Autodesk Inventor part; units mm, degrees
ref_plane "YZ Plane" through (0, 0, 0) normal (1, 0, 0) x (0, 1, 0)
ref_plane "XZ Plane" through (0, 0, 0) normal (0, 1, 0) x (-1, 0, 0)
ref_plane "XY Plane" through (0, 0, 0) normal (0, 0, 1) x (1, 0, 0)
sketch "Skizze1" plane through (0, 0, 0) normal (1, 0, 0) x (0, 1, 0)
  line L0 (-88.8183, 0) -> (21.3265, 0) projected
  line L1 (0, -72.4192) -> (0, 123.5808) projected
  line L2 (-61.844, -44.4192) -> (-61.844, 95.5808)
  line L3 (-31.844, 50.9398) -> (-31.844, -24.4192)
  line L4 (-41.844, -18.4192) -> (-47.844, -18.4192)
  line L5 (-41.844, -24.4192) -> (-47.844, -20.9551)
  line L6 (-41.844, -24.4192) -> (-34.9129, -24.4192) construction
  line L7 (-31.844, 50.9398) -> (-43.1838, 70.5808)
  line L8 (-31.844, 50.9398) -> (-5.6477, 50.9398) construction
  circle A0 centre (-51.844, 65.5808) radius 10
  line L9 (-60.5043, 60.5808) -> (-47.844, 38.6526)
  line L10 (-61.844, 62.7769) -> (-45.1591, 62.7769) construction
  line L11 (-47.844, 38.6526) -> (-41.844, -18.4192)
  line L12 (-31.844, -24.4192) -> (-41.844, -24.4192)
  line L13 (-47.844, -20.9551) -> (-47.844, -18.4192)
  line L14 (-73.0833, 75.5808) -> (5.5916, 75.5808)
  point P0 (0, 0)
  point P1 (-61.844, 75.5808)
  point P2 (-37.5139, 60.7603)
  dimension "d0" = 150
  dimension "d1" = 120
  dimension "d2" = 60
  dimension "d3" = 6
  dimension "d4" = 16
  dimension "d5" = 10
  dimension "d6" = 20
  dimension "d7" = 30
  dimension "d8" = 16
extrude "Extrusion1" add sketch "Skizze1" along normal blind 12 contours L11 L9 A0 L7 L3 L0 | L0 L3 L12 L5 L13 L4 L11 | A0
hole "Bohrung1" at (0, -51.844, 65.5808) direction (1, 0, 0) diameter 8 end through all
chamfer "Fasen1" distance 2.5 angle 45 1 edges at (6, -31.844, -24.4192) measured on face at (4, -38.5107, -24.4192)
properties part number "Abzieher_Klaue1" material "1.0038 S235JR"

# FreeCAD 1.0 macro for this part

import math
import FreeCAD as App
import Part
import Sketcher

V = App.Vector
Q = App.Units.Quantity


def edges_at(feature, points):
    """Names of the edges that pass closest to the given points."""
    edges = feature.Shape.Edges
    near = lambda p: min(range(len(edges)), key=lambda i: edges[i].distToShape(Part.Vertex(*p))[0])
    return sorted({f"Edge{near(p) + 1}" for p in points})

doc = App.newDocument("Part")
body = doc.addObject("PartDesign::Body", "Body")

# Sketch on YZ plane
sketch1 = doc.addObject("Sketcher::SketchObject", "Sketch")
body.addObject(sketch1)
sketch1.AttachmentSupport = (doc.YZ_Plane, [""])
sketch1.MapMode = "FlatFace"
sketch1.addGeometry([
    Part.LineSegment(V(-47.844, 38.6526, 0), V(-41.844, -18.4192, 0)),  # 0
    Part.LineSegment(V(-41.844, -18.4192, 0), V(-47.844, -18.4192, 0)),  # 1
    Part.LineSegment(V(-47.844, -18.4192, 0), V(-47.844, -20.9551, 0)),  # 2
    Part.LineSegment(V(-47.844, -20.9551, 0), V(-41.844, -24.4192, 0)),  # 3
    Part.LineSegment(V(-41.844, -24.4192, 0), V(-31.844, -24.4192, 0)),  # 4
    Part.LineSegment(V(-31.844, -24.4192, 0), V(-31.844, 50.9398, 0)),  # 5
    Part.LineSegment(V(-31.844, 50.9398, 0), V(-43.1838, 70.5808, 0)),  # 6
    Part.ArcOfCircle(Part.Circle(V(-51.844, 65.5808, 0), V(0, 0, 1), 10), math.radians(30.000155), math.radians(209.999868)),  # 7
    Part.LineSegment(V(-60.5043, 60.5808, 0), V(-47.844, 38.6526, 0)),  # 8
], False)
sketch1.addConstraint([
    Sketcher.Constraint("Coincident", 0, 2, 1, 1),
    Sketcher.Constraint("Coincident", 1, 2, 2, 1),
    Sketcher.Constraint("Coincident", 2, 2, 3, 1),
    Sketcher.Constraint("Coincident", 3, 2, 4, 1),
    Sketcher.Constraint("Coincident", 4, 2, 5, 1),
    Sketcher.Constraint("Coincident", 5, 2, 6, 1),
    Sketcher.Constraint("Tangent", 6, 2, 7, 1),
    Sketcher.Constraint("Tangent", 7, 2, 8, 1),
    Sketcher.Constraint("Coincident", 8, 2, 0, 1),
    Sketcher.Constraint("Horizontal", 1),
    Sketcher.Constraint("Vertical", 2),
    Sketcher.Constraint("Horizontal", 4),
    Sketcher.Constraint("Vertical", 5),
    Sketcher.Constraint("Parallel", 6, 8),
    Sketcher.Constraint("Vertical", 0, 2, 3, 2),
    Sketcher.Constraint("Vertical", 2, 2, 8, 2),
    Sketcher.Constraint("Radius", 7, Q("10 mm")),
    Sketcher.Constraint("DistanceX", 1, 2, 1, 1, Q("6 mm")),
    Sketcher.Constraint("DistanceX", 4, 1, 4, 2, Q("10 mm")),
    Sketcher.Constraint("Angle", 3, Q("-30 deg")),
    Sketcher.Constraint("Angle", 6, Q("120.0001 deg")),
    Sketcher.Constraint("DistanceX", 7, 3, 0, 2, Q("10 mm")),
    Sketcher.Constraint("DistanceY", 3, 2, 0, 2, Q("6 mm")),
    Sketcher.Constraint("DistanceY", 0, 2, 7, 3, Q("84 mm")),
    Sketcher.Constraint("DistanceX", 7, 3, -1, 1, Q("51.844 mm")),
    Sketcher.Constraint("DistanceY", 2, 2, -1, 1, Q("20.955 mm")),
])
pad1 = doc.addObject("PartDesign::Pad", "Pad")
body.addObject(pad1)
pad1.Profile = sketch1
pad1.Length = 12

# Sketch on YZ plane
sketch2 = doc.addObject("Sketcher::SketchObject", "Sketch001")
body.addObject(sketch2)
sketch2.AttachmentSupport = (doc.YZ_Plane, [""])
sketch2.MapMode = "FlatFace"
sketch2.addGeometry(Part.Circle(V(-51.844, 65.5808, 0), V(0, 0, 1), 4), False)
sketch2.addConstraint([
    Sketcher.Constraint("Diameter", 0, Q("8 mm")),
    Sketcher.Constraint("DistanceX", 0, 3, -1, 1, Q("51.844 mm")),
    Sketcher.Constraint("DistanceY", -1, 1, 0, 3, Q("65.5808 mm")),
])
doc.recompute()
hole = doc.addObject("PartDesign::Hole", "Hole")
body.addObject(hole)
hole.Profile = sketch2
hole.ThreadType = "None"
hole.Diameter = 8
hole.DepthType = "ThroughAll"
hole.Reversed = True
doc.recompute()

chamfer = doc.addObject("PartDesign::Chamfer", "Chamfer")
body.addObject(chamfer)
chamfer.Base = (hole, edges_at(hole, [(6, -31.844, -24.419)]))
chamfer.Size = 2.5

doc.recompute()
